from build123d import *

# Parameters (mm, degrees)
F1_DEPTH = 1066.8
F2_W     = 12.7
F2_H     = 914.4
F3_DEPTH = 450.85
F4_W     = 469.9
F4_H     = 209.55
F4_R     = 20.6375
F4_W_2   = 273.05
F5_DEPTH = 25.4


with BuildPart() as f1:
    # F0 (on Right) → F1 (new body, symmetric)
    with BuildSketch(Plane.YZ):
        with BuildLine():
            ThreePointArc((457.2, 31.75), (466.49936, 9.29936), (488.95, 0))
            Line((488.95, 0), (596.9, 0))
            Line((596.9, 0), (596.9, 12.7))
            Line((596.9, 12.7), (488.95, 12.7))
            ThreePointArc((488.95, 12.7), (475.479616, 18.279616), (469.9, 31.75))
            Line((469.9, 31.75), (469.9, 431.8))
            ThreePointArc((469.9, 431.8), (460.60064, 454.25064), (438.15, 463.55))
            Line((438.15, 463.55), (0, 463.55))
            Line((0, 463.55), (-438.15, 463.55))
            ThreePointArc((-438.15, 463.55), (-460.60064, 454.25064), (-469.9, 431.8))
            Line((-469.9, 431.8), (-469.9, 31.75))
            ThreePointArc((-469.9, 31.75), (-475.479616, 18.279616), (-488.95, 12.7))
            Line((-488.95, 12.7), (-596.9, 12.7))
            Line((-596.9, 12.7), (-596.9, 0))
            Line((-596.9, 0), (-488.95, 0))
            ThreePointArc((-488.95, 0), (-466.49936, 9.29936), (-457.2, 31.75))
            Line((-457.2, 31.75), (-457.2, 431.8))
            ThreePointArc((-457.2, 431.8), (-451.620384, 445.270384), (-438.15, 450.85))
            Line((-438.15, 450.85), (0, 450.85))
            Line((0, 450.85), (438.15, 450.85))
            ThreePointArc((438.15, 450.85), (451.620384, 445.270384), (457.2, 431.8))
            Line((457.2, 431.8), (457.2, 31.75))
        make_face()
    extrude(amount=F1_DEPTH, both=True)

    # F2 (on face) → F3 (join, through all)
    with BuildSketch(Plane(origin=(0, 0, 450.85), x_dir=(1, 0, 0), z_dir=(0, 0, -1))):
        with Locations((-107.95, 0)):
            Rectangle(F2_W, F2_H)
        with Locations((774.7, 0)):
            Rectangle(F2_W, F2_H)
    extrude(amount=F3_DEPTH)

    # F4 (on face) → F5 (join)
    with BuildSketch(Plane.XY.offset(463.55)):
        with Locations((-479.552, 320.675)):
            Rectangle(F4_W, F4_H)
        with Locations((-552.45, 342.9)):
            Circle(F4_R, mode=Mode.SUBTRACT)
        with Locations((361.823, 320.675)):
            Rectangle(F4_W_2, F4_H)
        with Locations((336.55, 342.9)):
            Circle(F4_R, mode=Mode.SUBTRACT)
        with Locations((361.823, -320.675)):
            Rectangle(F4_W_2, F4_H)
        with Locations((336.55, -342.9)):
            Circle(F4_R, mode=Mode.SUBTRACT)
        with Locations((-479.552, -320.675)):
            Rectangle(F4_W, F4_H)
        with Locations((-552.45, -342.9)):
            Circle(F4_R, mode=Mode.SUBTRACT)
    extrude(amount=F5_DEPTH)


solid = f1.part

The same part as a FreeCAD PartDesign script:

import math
import FreeCAD as App
import Part
import Sketcher

V = App.Vector
Q = App.Units.Quantity

doc = App.newDocument("Part")
params = doc.addObject("Spreadsheet::Sheet", "Params")
for row, (alias, value) in enumerate([
    ("sketch1_radius", "1.25 in"),
    ("sketch1_radius2", "0.75 in"),
    ("sketch1_width", "34.5 in"),
    ("pad1_length", "84 in"),
    ("sketch2_height", "36 in"),
    ("sketch2_width", "0.5 in"),
    ("pad2_length", "17.75 in"),
    ("sketch3_diameter", "1.625 in"),
    ("sketch3_width", "18.5 in"),
    ("sketch3_width2", "10.75 in"),
    ("sketch3_height", "8.25 in"),
    ("pad3_length", "1 in"),
], start=1):
    params.set(f"A{row}", alias)
    params.set(f"B{row}", "=" + value)
    params.setAlias(f"B{row}", alias)

body = doc.addObject("PartDesign::Body", "Body")

# Sketch on YZ plane
sketch1 = body.newObject("Sketcher::SketchObject", "Sketch")
sketch1.AttachmentSupport = (doc.getObject("YZ_Plane"), [""])
sketch1.MapMode = "FlatFace"
sketch1.addGeometry(Part.ArcOfCircle(Part.Circle(V(489, 32, 0), V(0, 0, 1), 32), math.radians(-180), math.radians(-90)), False)
sketch1.addGeometry(Part.LineSegment(V(489, 0, 0), V(597, 0, 0)), False)
sketch1.addGeometry(Part.LineSegment(V(597, 0, 0), V(597, 13, 0)), False)
sketch1.addGeometry(Part.LineSegment(V(597, 13, 0), V(489, 13, 0)), False)
sketch1.addGeometry(Part.ArcOfCircle(Part.Circle(V(489, 32, 0), V(0, 0, 1), 19), math.radians(-180), math.radians(-90)), False)
sketch1.addGeometry(Part.LineSegment(V(470, 32, 0), V(470, 432, 0)), False)
sketch1.addGeometry(Part.ArcOfCircle(Part.Circle(V(438, 432, 0), V(0, 0, 1), 32), math.radians(0), math.radians(90)), False)
sketch1.addGeometry(Part.LineSegment(V(438, 464, 0), V(-438, 464, 0)), False)
sketch1.addGeometry(Part.ArcOfCircle(Part.Circle(V(-438, 432, 0), V(0, 0, 1), 32), math.radians(90), math.radians(180)), False)
sketch1.addGeometry(Part.LineSegment(V(-470, 432, 0), V(-470, 32, 0)), False)
sketch1.addGeometry(Part.ArcOfCircle(Part.Circle(V(-489, 32, 0), V(0, 0, 1), 19), math.radians(-90), math.radians(0)), False)
sketch1.addGeometry(Part.LineSegment(V(-489, 13, 0), V(-597, 13, 0)), False)
sketch1.addGeometry(Part.LineSegment(V(-597, 13, 0), V(-597, 0, 0)), False)
sketch1.addGeometry(Part.LineSegment(V(-597, 0, 0), V(-489, 0, 0)), False)
sketch1.addGeometry(Part.ArcOfCircle(Part.Circle(V(-489, 32, 0), V(0, 0, 1), 32), math.radians(-90), math.radians(0)), False)
sketch1.addGeometry(Part.LineSegment(V(-457, 32, 0), V(-457, 432, 0)), False)
sketch1.addGeometry(Part.ArcOfCircle(Part.Circle(V(-438, 432, 0), V(0, 0, 1), 19), math.radians(90), math.radians(180)), False)
sketch1.addGeometry(Part.LineSegment(V(-438, 451, 0), V(438, 451, 0)), False)
sketch1.addGeometry(Part.ArcOfCircle(Part.Circle(V(438, 432, 0), V(0, 0, 1), 19), math.radians(0), math.radians(90)), False)
sketch1.addGeometry(Part.LineSegment(V(457, 432, 0), V(457, 32, 0)), False)
sketch1.addConstraint(Sketcher.Constraint("Tangent", 0, 2, 1, 1))
sketch1.addConstraint(Sketcher.Constraint("Coincident", 1, 2, 2, 1))
sketch1.addConstraint(Sketcher.Constraint("Coincident", 2, 2, 3, 1))
sketch1.addConstraint(Sketcher.Constraint("Tangent", 3, 2, 4, 2))
sketch1.addConstraint(Sketcher.Constraint("Tangent", 4, 1, 5, 1))
sketch1.addConstraint(Sketcher.Constraint("Tangent", 5, 2, 6, 1))
sketch1.addConstraint(Sketcher.Constraint("Tangent", 6, 2, 7, 1))
sketch1.addConstraint(Sketcher.Constraint("Tangent", 7, 2, 8, 1))
sketch1.addConstraint(Sketcher.Constraint("Tangent", 8, 2, 9, 1))
sketch1.addConstraint(Sketcher.Constraint("Tangent", 9, 2, 10, 2))
sketch1.addConstraint(Sketcher.Constraint("Tangent", 10, 1, 11, 1))
sketch1.addConstraint(Sketcher.Constraint("Coincident", 11, 2, 12, 1))
sketch1.addConstraint(Sketcher.Constraint("Coincident", 12, 2, 13, 1))
sketch1.addConstraint(Sketcher.Constraint("Tangent", 13, 2, 14, 1))
sketch1.addConstraint(Sketcher.Constraint("Tangent", 14, 2, 15, 1))
sketch1.addConstraint(Sketcher.Constraint("Tangent", 15, 2, 16, 2))
sketch1.addConstraint(Sketcher.Constraint("Tangent", 16, 1, 17, 1))
sketch1.addConstraint(Sketcher.Constraint("Tangent", 17, 2, 18, 2))
sketch1.addConstraint(Sketcher.Constraint("Tangent", 18, 1, 19, 1))
sketch1.addConstraint(Sketcher.Constraint("Tangent", 19, 2, 0, 1))
sketch1.addConstraint(Sketcher.Constraint("Horizontal", 1))
sketch1.addConstraint(Sketcher.Constraint("Vertical", 2))
sketch1.addConstraint(Sketcher.Constraint("Horizontal", 3))
sketch1.addConstraint(Sketcher.Constraint("Vertical", 5))
sketch1.addConstraint(Sketcher.Constraint("Horizontal", 7))
sketch1.addConstraint(Sketcher.Constraint("Vertical", 9))
sketch1.addConstraint(Sketcher.Constraint("Horizontal", 11))
sketch1.addConstraint(Sketcher.Constraint("Vertical", 12))
sketch1.addConstraint(Sketcher.Constraint("Horizontal", 13))
sketch1.addConstraint(Sketcher.Constraint("Vertical", 15))
sketch1.addConstraint(Sketcher.Constraint("Horizontal", 17))
sketch1.addConstraint(Sketcher.Constraint("Vertical", 19))
sketch1.addConstraint(Sketcher.Constraint("Coincident", 4, 3, 0, 3))
sketch1.addConstraint(Sketcher.Constraint("Coincident", 14, 3, 10, 3))
sketch1.addConstraint(Sketcher.Constraint("Coincident", 16, 3, 8, 3))
sketch1.addConstraint(Sketcher.Constraint("Coincident", 18, 3, 6, 3))
sketch1.addConstraint(Sketcher.Constraint("Equal", 0, 6))
sketch1.addConstraint(Sketcher.Constraint("Equal", 6, 8))
sketch1.addConstraint(Sketcher.Constraint("Equal", 4, 10))
sketch1.addConstraint(Sketcher.Constraint("Symmetric", 1, 2, 12, 2, -1, 1))
sketch1.addConstraint(Sketcher.Constraint("Symmetric", 0, 3, 10, 3, -2))
sketch1.addConstraint(Sketcher.Constraint("Radius", 0, Q("1.25 in")))
sketch1.addConstraint(Sketcher.Constraint("Radius", 4, Q("0.75 in")))
sketch1.addConstraint(Sketcher.Constraint("DistanceX", 7, 2, 7, 1, Q("34.5 in")))
sketch1.addConstraint(Sketcher.Constraint("DistanceY", -1, 1, 6, 3, Q("17 in")))
sketch1.addConstraint(Sketcher.Constraint("DistanceX", 4, 1, 2, 2, Q("5 in")))
sketch1.setExpression("Constraints[41]", "Params.sketch1_radius")
sketch1.setExpression("Constraints[42]", "Params.sketch1_radius2")
sketch1.setExpression("Constraints[43]", "Params.sketch1_width")
pad1 = body.newObject("PartDesign::Pad", "Pad")
pad1.Profile = sketch1
pad1.setExpression("Length", "Params.pad1_length")
pad1.Midplane = True

# Sketch on XY plane
sketch2 = body.newObject("Sketcher::SketchObject", "Sketch001")
sketch2.AttachmentSupport = (doc.getObject("XY_Plane"), [""])
sketch2.MapMode = "FlatFace"
sketch2.AttachmentOffset = App.Placement(V(0, 0, 17.75 * 25.4), App.Rotation())
sketch2.addGeometry(Part.LineSegment(V(-114, -457, 0), V(-114, 457, 0)), False)
sketch2.addGeometry(Part.LineSegment(V(-114, 457, 0), V(-102, 457, 0)), False)
sketch2.addGeometry(Part.LineSegment(V(-102, 457, 0), V(-102, -457, 0)), False)
sketch2.addGeometry(Part.LineSegment(V(-102, -457, 0), V(-114, -457, 0)), False)
sketch2.addGeometry(Part.LineSegment(V(768, -457, 0), V(768, 457, 0)), False)
sketch2.addGeometry(Part.LineSegment(V(768, 457, 0), V(781, 457, 0)), False)
sketch2.addGeometry(Part.LineSegment(V(781, 457, 0), V(781, -457, 0)), False)
sketch2.addGeometry(Part.LineSegment(V(781, -457, 0), V(768, -457, 0)), False)
sketch2.addConstraint(Sketcher.Constraint("Coincident", 0, 2, 1, 1))
sketch2.addConstraint(Sketcher.Constraint("Coincident", 1, 2, 2, 1))
sketch2.addConstraint(Sketcher.Constraint("Coincident", 2, 2, 3, 1))
sketch2.addConstraint(Sketcher.Constraint("Coincident", 3, 2, 0, 1))
sketch2.addConstraint(Sketcher.Constraint("Coincident", 4, 2, 5, 1))
sketch2.addConstraint(Sketcher.Constraint("Coincident", 5, 2, 6, 1))
sketch2.addConstraint(Sketcher.Constraint("Coincident", 6, 2, 7, 1))
sketch2.addConstraint(Sketcher.Constraint("Coincident", 7, 2, 4, 1))
sketch2.addConstraint(Sketcher.Constraint("Vertical", 0))
sketch2.addConstraint(Sketcher.Constraint("Horizontal", 1))
sketch2.addConstraint(Sketcher.Constraint("Vertical", 2))
sketch2.addConstraint(Sketcher.Constraint("Horizontal", 3))
sketch2.addConstraint(Sketcher.Constraint("Vertical", 4))
sketch2.addConstraint(Sketcher.Constraint("Horizontal", 5))
sketch2.addConstraint(Sketcher.Constraint("Vertical", 6))
sketch2.addConstraint(Sketcher.Constraint("Horizontal", 7))
sketch2.addConstraint(Sketcher.Constraint("Horizontal", 1, 2, 4, 2))
sketch2.addConstraint(Sketcher.Constraint("Horizontal", 3, 2, 6, 2))
sketch2.addConstraint(Sketcher.Constraint("Equal", 3, 5))
sketch2.addConstraint(Sketcher.Constraint("DistanceY", 0, 1, 0, 2, Q("36 in")))
sketch2.addConstraint(Sketcher.Constraint("DistanceX", 1, 1, 1, 2, Q("0.5 in")))
sketch2.addConstraint(Sketcher.Constraint("DistanceY", -1, 1, 0, 2, Q("18 in")))
sketch2.addConstraint(Sketcher.Constraint("DistanceX", 1, 2, -1, 1, Q("4 in")))
sketch2.addConstraint(Sketcher.Constraint("DistanceX", -1, 1, 4, 2, Q("30.25 in")))
sketch2.setExpression("Constraints[19]", "Params.sketch2_height")
sketch2.setExpression("Constraints[20]", "Params.sketch2_width")
pad2 = body.newObject("PartDesign::Pad", "Pad001")
pad2.Profile = sketch2
pad2.setExpression("Length", "Params.pad2_length")
pad2.Reversed = True

# Sketch on XY plane
sketch3 = body.newObject("Sketcher::SketchObject", "Sketch002")
sketch3.AttachmentSupport = (doc.getObject("XY_Plane"), [""])
sketch3.MapMode = "FlatFace"
sketch3.AttachmentOffset = App.Placement(V(0, 0, 18.25 * 25.4), App.Rotation())
sketch3.addGeometry(Part.LineSegment(V(-715, 425, 0), V(-715, 216, 0)), False)
sketch3.addGeometry(Part.LineSegment(V(-715, 216, 0), V(-245, 216, 0)), False)
sketch3.addGeometry(Part.LineSegment(V(-245, 216, 0), V(-245, 425, 0)), False)
sketch3.addGeometry(Part.LineSegment(V(-245, 425, 0), V(-715, 425, 0)), False)
sketch3.addGeometry(Part.Circle(V(-552, 343, 0), V(0, 0, 1), 21), False)
sketch3.addGeometry(Part.LineSegment(V(225, 425, 0), V(225, 216, 0)), False)
sketch3.addGeometry(Part.LineSegment(V(225, 216, 0), V(498, 216, 0)), False)
sketch3.addGeometry(Part.LineSegment(V(498, 216, 0), V(498, 425, 0)), False)
sketch3.addGeometry(Part.LineSegment(V(498, 425, 0), V(225, 425, 0)), False)
sketch3.addGeometry(Part.Circle(V(337, 343, 0), V(0, 0, 1), 21), False)
sketch3.addGeometry(Part.LineSegment(V(225, -216, 0), V(225, -425, 0)), False)
sketch3.addGeometry(Part.LineSegment(V(225, -425, 0), V(498, -425, 0)), False)
sketch3.addGeometry(Part.LineSegment(V(498, -425, 0), V(498, -216, 0)), False)
sketch3.addGeometry(Part.LineSegment(V(498, -216, 0), V(225, -216, 0)), False)
sketch3.addGeometry(Part.Circle(V(337, -343, 0), V(0, 0, 1), 21), False)
sketch3.addGeometry(Part.LineSegment(V(-715, -216, 0), V(-715, -425, 0)), False)
sketch3.addGeometry(Part.LineSegment(V(-715, -425, 0), V(-245, -425, 0)), False)
sketch3.addGeometry(Part.LineSegment(V(-245, -425, 0), V(-245, -216, 0)), False)
sketch3.addGeometry(Part.LineSegment(V(-245, -216, 0), V(-715, -216, 0)), False)
sketch3.addGeometry(Part.Circle(V(-552, -343, 0), V(0, 0, 1), 21), False)
sketch3.addConstraint(Sketcher.Constraint("Coincident", 0, 2, 1, 1))
sketch3.addConstraint(Sketcher.Constraint("Coincident", 1, 2, 2, 1))
sketch3.addConstraint(Sketcher.Constraint("Coincident", 2, 2, 3, 1))
sketch3.addConstraint(Sketcher.Constraint("Coincident", 3, 2, 0, 1))
sketch3.addConstraint(Sketcher.Constraint("Coincident", 5, 2, 6, 1))
sketch3.addConstraint(Sketcher.Constraint("Coincident", 6, 2, 7, 1))
sketch3.addConstraint(Sketcher.Constraint("Coincident", 7, 2, 8, 1))
sketch3.addConstraint(Sketcher.Constraint("Coincident", 8, 2, 5, 1))
sketch3.addConstraint(Sketcher.Constraint("Coincident", 10, 2, 11, 1))
sketch3.addConstraint(Sketcher.Constraint("Coincident", 11, 2, 12, 1))
sketch3.addConstraint(Sketcher.Constraint("Coincident", 12, 2, 13, 1))
sketch3.addConstraint(Sketcher.Constraint("Coincident", 13, 2, 10, 1))
sketch3.addConstraint(Sketcher.Constraint("Coincident", 15, 2, 16, 1))
sketch3.addConstraint(Sketcher.Constraint("Coincident", 16, 2, 17, 1))
sketch3.addConstraint(Sketcher.Constraint("Coincident", 17, 2, 18, 1))
sketch3.addConstraint(Sketcher.Constraint("Coincident", 18, 2, 15, 1))
sketch3.addConstraint(Sketcher.Constraint("Vertical", 0))
sketch3.addConstraint(Sketcher.Constraint("Horizontal", 1))
sketch3.addConstraint(Sketcher.Constraint("Vertical", 2))
sketch3.addConstraint(Sketcher.Constraint("Horizontal", 3))
sketch3.addConstraint(Sketcher.Constraint("Vertical", 5))
sketch3.addConstraint(Sketcher.Constraint("Horizontal", 6))
sketch3.addConstraint(Sketcher.Constraint("Vertical", 7))
sketch3.addConstraint(Sketcher.Constraint("Horizontal", 8))
sketch3.addConstraint(Sketcher.Constraint("Vertical", 10))
sketch3.addConstraint(Sketcher.Constraint("Horizontal", 11))
sketch3.addConstraint(Sketcher.Constraint("Vertical", 12))
sketch3.addConstraint(Sketcher.Constraint("Horizontal", 13))
sketch3.addConstraint(Sketcher.Constraint("Vertical", 15))
sketch3.addConstraint(Sketcher.Constraint("Horizontal", 16))
sketch3.addConstraint(Sketcher.Constraint("Vertical", 17))
sketch3.addConstraint(Sketcher.Constraint("Horizontal", 18))
sketch3.addConstraint(Sketcher.Constraint("Equal", 4, 9))
sketch3.addConstraint(Sketcher.Constraint("Equal", 9, 14))
sketch3.addConstraint(Sketcher.Constraint("Equal", 14, 19))
sketch3.addConstraint(Sketcher.Constraint("Symmetric", 9, 3, 14, 3, -1))
sketch3.addConstraint(Sketcher.Constraint("Symmetric", 4, 3, 19, 3, -1))
sketch3.addConstraint(Sketcher.Constraint("Symmetric", 8, 2, 10, 2, -1))
sketch3.addConstraint(Sketcher.Constraint("Symmetric", 6, 2, 12, 2, -1))
sketch3.addConstraint(Sketcher.Constraint("Symmetric", 3, 2, 15, 2, -1))
sketch3.addConstraint(Sketcher.Constraint("Symmetric", 1, 2, 17, 2, -1))
sketch3.addConstraint(Sketcher.Constraint("Horizontal", 4, 3, 9, 3))
sketch3.addConstraint(Sketcher.Constraint("Horizontal", 1, 2, 5, 2))
sketch3.addConstraint(Sketcher.Constraint("Horizontal", 3, 2, 7, 2))
sketch3.addConstraint(Sketcher.Constraint("Diameter", 4, Q("1.625 in")))
sketch3.addConstraint(Sketcher.Constraint("DistanceX", 1, 1, 1, 2, Q("18.5 in")))
sketch3.addConstraint(Sketcher.Constraint("DistanceX", 4, 3, 9, 3, Q("35 in")))
sketch3.addConstraint(Sketcher.Constraint("DistanceY", 14, 3, 9, 3, Q("27 in")))
sketch3.addConstraint(Sketcher.Constraint("DistanceY", 0, 2, 4, 3, Q("5 in")))
sketch3.addConstraint(Sketcher.Constraint("DistanceX", 6, 1, 6, 2, Q("10.75 in")))
sketch3.addConstraint(Sketcher.Constraint("DistanceY", 0, 2, 0, 1, Q("8.25 in")))
sketch3.addConstraint(Sketcher.Constraint("DistanceX", 1, 2, 5, 2, Q("18.5 in")))
sketch3.addConstraint(Sketcher.Constraint("DistanceX", 4, 3, -1, 1, Q("21.75 in")))
sketch3.addConstraint(Sketcher.Constraint("DistanceX", 0, 2, -1, 1, Q("28.13 in")))
sketch3.setExpression("Constraints[44]", "Params.sketch3_diameter")
sketch3.setExpression("Constraints[45]", "Params.sketch3_width")
sketch3.setExpression("Constraints[49]", "Params.sketch3_width2")
sketch3.setExpression("Constraints[50]", "Params.sketch3_height")
pad3 = body.newObject("PartDesign::Pad", "Pad002")
pad3.Profile = sketch3
pad3.setExpression("Length", "Params.pad3_length")

doc.recompute()
